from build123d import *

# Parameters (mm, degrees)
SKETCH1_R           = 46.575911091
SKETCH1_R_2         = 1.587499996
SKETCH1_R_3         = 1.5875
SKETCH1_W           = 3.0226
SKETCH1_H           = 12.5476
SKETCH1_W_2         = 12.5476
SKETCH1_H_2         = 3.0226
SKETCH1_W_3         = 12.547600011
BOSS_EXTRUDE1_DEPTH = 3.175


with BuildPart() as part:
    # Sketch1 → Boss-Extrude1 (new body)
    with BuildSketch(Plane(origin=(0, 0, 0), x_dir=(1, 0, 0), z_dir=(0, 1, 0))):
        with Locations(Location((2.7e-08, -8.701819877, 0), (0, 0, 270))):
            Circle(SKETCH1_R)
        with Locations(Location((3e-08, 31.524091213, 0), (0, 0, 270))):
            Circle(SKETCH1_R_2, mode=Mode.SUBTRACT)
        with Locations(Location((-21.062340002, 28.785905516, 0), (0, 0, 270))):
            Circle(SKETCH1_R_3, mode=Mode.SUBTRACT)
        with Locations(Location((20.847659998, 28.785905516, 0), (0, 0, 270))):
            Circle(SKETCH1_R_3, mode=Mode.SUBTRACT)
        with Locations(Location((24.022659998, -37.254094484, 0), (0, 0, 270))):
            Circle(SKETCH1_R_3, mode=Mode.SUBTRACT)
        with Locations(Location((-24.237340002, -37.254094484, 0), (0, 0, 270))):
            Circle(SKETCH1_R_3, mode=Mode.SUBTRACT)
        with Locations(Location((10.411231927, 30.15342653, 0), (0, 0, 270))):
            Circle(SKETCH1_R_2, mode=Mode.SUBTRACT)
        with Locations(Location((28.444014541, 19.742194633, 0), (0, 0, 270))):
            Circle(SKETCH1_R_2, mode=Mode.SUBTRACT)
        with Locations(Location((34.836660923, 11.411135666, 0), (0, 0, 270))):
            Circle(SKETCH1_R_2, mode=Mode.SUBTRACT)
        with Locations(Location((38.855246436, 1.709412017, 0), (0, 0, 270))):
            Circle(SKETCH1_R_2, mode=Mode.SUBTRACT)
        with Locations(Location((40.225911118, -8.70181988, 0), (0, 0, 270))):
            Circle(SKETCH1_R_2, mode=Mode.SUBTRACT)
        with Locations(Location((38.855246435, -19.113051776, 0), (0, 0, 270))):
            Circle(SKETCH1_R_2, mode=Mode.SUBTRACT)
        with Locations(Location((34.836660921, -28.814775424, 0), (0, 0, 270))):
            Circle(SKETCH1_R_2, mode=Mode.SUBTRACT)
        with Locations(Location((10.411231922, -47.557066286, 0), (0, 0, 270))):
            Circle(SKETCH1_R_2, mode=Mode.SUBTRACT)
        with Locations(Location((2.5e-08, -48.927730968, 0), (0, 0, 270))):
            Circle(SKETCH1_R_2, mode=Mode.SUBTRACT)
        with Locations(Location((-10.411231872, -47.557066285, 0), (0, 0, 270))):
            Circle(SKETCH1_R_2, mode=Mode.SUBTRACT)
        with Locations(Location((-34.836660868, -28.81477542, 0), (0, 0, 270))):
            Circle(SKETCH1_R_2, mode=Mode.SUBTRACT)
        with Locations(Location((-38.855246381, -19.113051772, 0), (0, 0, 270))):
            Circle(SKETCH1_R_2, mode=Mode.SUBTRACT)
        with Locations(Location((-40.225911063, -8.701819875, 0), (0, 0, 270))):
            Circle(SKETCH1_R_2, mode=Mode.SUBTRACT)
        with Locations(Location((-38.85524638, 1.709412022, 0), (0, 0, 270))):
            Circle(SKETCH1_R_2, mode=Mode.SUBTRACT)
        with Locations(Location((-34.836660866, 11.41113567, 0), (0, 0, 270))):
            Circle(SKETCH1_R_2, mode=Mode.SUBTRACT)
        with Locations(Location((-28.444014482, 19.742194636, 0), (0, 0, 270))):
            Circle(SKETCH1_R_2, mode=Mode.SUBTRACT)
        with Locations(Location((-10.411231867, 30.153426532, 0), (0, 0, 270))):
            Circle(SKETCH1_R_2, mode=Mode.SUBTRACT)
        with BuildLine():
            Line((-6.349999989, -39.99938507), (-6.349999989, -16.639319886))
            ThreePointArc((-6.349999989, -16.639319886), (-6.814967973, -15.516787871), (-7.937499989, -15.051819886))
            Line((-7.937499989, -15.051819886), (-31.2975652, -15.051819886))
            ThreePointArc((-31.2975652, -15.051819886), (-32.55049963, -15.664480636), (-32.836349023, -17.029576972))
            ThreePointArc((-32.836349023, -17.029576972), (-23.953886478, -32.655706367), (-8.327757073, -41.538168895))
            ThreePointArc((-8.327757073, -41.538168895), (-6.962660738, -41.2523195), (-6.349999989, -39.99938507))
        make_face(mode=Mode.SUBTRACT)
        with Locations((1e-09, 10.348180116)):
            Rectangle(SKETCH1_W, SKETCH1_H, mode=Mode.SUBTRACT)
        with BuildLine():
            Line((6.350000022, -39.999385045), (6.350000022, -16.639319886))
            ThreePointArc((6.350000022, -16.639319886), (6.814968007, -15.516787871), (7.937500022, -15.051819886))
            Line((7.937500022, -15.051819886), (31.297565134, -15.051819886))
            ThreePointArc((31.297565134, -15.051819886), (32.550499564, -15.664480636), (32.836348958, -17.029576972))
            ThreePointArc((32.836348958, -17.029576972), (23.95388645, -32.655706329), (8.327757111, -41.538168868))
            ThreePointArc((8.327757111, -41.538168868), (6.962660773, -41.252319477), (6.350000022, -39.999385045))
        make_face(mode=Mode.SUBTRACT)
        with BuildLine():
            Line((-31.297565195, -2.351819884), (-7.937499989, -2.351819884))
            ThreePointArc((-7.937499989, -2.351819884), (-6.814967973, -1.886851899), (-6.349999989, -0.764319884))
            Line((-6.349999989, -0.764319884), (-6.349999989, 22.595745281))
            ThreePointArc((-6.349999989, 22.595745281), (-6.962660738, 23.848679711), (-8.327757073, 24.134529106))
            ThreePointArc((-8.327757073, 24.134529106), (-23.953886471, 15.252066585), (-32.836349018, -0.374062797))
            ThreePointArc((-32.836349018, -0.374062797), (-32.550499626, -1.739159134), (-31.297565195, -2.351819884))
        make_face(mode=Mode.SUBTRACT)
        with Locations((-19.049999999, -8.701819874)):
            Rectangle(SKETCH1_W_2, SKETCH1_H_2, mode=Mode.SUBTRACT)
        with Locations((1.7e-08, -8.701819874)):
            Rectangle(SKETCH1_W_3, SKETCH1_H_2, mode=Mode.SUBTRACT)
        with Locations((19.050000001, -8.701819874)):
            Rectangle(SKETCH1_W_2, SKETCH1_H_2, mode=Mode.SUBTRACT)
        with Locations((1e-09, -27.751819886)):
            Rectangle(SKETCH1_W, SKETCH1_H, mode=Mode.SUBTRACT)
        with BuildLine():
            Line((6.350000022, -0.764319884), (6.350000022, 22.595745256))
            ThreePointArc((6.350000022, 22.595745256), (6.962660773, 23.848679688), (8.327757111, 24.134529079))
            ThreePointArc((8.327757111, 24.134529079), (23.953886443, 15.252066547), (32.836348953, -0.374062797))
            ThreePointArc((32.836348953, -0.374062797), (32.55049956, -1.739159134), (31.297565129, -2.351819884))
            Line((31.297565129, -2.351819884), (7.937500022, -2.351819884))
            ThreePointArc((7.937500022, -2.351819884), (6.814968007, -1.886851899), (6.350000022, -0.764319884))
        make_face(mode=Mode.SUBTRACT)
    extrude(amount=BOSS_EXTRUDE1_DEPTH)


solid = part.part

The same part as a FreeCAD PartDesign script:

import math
import FreeCAD as App
import Part
import Sketcher

V = App.Vector
Q = App.Units.Quantity

doc = App.newDocument("Part")
body = doc.addObject("PartDesign::Body", "Body")

# Sketch on XZ plane
sketch1 = body.newObject("Sketcher::SketchObject", "Sketch")
sketch1.AttachmentSupport = (doc.getObject("XZ_Plane"), [""])
sketch1.MapMode = "FlatFace"
sketch1.addGeometry([
    Part.Circle(V(0, 8.7, 0), V(0, 0, 1), 46.6),  # 0
    Part.Circle(V(-21.1, -28.8, 0), V(0, 0, 1), 1.6),  # 1
    Part.Circle(V(-28.4, -19.7, 0), V(0, 0, 1), 1.6),  # 2
    Part.Circle(V(-34.8, -11.4, 0), V(0, 0, 1), 1.6),  # 3
    Part.Circle(V(-38.9, -1.7, 0), V(0, 0, 1), 1.6),  # 4
    Part.Circle(V(-40.2, 8.7, 0), V(0, 0, 1), 1.6),  # 5
    Part.Circle(V(-10.4, -30.2, 0), V(0, 0, 1), 1.6),  # 6
    Part.LineSegment(V(-7.9, 2.4, 0), V(-31.3, 2.4, 0)),  # 7
    Part.ArcOfCircle(Part.Circle(V(-31.3, 0.8, 0), V(0, 0, 1), 1.6), math.radians(90), math.radians(194)),  # 8
    Part.ArcOfCircle(Part.Circle(V(0, 8.7, 0), V(0, 0, 1), 33.9), math.radians(-166), math.radians(-104)),  # 9
    Part.ArcOfCircle(Part.Circle(V(-7.9, -22.6, 0), V(0, 0, 1), 1.6), math.radians(-104), math.radians(0)),  # 10
    Part.LineSegment(V(-6.3, -22.6, 0), V(-6.3, 0.8, 0)),  # 11
    Part.ArcOfCircle(Part.Circle(V(-7.9, 0.8, 0), V(0, 0, 1), 1.6), math.radians(0), math.radians(90)),  # 12
    Part.LineSegment(V(-12.8, 10.2, 0), V(-25.3, 10.2, 0)),  # 13
    Part.LineSegment(V(-25.3, 10.2, 0), V(-25.3, 7.2, 0)),  # 14
    Part.LineSegment(V(-25.3, 7.2, 0), V(-12.8, 7.2, 0)),  # 15
    Part.LineSegment(V(-12.8, 7.2, 0), V(-12.8, 10.2, 0)),  # 16
    Part.LineSegment(V(1.5, -4.1, 0), V(-1.5, -4.1, 0)),  # 17
    Part.LineSegment(V(-1.5, -4.1, 0), V(-1.5, -16.6, 0)),  # 18
    Part.LineSegment(V(-1.5, -16.6, 0), V(1.5, -16.6, 0)),  # 19
    Part.LineSegment(V(1.5, -16.6, 0), V(1.5, -4.1, 0)),  # 20
    Part.LineSegment(V(6.3, 10.2, 0), V(-6.3, 10.2, 0)),  # 21
    Part.LineSegment(V(-6.3, 10.2, 0), V(-6.3, 7.2, 0)),  # 22
    Part.LineSegment(V(-6.3, 7.2, 0), V(6.3, 7.2, 0)),  # 23
    Part.LineSegment(V(6.3, 7.2, 0), V(6.3, 10.2, 0)),  # 24
    Part.Circle(V(-38.9, 19.1, 0), V(0, 0, 1), 1.6),  # 25
    Part.Circle(V(-34.8, 28.8, 0), V(0, 0, 1), 1.6),  # 26
    Part.Circle(V(-24.2, 37.3, 0), V(0, 0, 1), 1.6),  # 27
    Part.LineSegment(V(-6.3, 16.6, 0), V(-6.3, 40, 0)),  # 28
    Part.ArcOfCircle(Part.Circle(V(-7.9, 40, 0), V(0, 0, 1), 1.6), math.radians(0), math.radians(104)),  # 29
    Part.ArcOfCircle(Part.Circle(V(0, 8.7, 0), V(0, 0, 1), 33.9), math.radians(104), math.radians(166)),  # 30
    Part.ArcOfCircle(Part.Circle(V(-31.3, 16.6, 0), V(0, 0, 1), 1.6), math.radians(166), math.radians(270)),  # 31
    Part.LineSegment(V(-31.3, 15.1, 0), V(-7.9, 15.1, 0)),  # 32
    Part.ArcOfCircle(Part.Circle(V(-7.9, 16.6, 0), V(0, 0, 1), 1.6), math.radians(-90), math.radians(0)),  # 33
    Part.LineSegment(V(1.5, 34, 0), V(-1.5, 34, 0)),  # 34
    Part.LineSegment(V(-1.5, 34, 0), V(-1.5, 21.5, 0)),  # 35
    Part.LineSegment(V(-1.5, 21.5, 0), V(1.5, 21.5, 0)),  # 36
    Part.LineSegment(V(1.5, 21.5, 0), V(1.5, 34, 0)),  # 37
    Part.Circle(V(-10.4, 47.6, 0), V(0, 0, 1), 1.6),  # 38
    Part.Circle(V(0, 48.9, 0), V(0, 0, 1), 1.6),  # 39
    Part.Circle(V(0, -31.5, 0), V(0, 0, 1), 1.6),  # 40
    Part.Circle(V(10.4, -30.2, 0), V(0, 0, 1), 1.6),  # 41
    Part.Circle(V(20.8, -28.8, 0), V(0, 0, 1), 1.6),  # 42
    Part.ArcOfCircle(Part.Circle(V(7.9, 0.8, 0), V(0, 0, 1), 1.6), math.radians(90), math.radians(180)),  # 43
    Part.LineSegment(V(6.4, 0.8, 0), V(6.4, -22.6, 0)),  # 44
    Part.ArcOfCircle(Part.Circle(V(7.9, -22.6, 0), V(0, 0, 1), 1.6), math.radians(180), math.radians(284)),  # 45
    Part.ArcOfCircle(Part.Circle(V(0, 8.7, 0), V(0, 0, 1), 33.9), math.radians(-76), math.radians(-14)),  # 46
    Part.ArcOfCircle(Part.Circle(V(31.3, 0.8, 0), V(0, 0, 1), 1.6), math.radians(-14), math.radians(90)),  # 47
    Part.LineSegment(V(31.3, 2.4, 0), V(7.9, 2.4, 0)),  # 48
    Part.LineSegment(V(25.3, 10.2, 0), V(12.8, 10.2, 0)),  # 49
    Part.LineSegment(V(12.8, 10.2, 0), V(12.8, 7.2, 0)),  # 50
    Part.LineSegment(V(12.8, 7.2, 0), V(25.3, 7.2, 0)),  # 51
    Part.LineSegment(V(25.3, 7.2, 0), V(25.3, 10.2, 0)),  # 52
    Part.Circle(V(28.4, -19.7, 0), V(0, 0, 1), 1.6),  # 53
    Part.Circle(V(34.8, -11.4, 0), V(0, 0, 1), 1.6),  # 54
    Part.Circle(V(38.9, -1.7, 0), V(0, 0, 1), 1.6),  # 55
    Part.ArcOfCircle(Part.Circle(V(7.9, 40, 0), V(0, 0, 1), 1.6), math.radians(76), math.radians(180)),  # 56
    Part.LineSegment(V(6.4, 40, 0), V(6.4, 16.6, 0)),  # 57
    Part.ArcOfCircle(Part.Circle(V(7.9, 16.6, 0), V(0, 0, 1), 1.6), math.radians(180), math.radians(270)),  # 58
    Part.LineSegment(V(7.9, 15.1, 0), V(31.3, 15.1, 0)),  # 59
    Part.ArcOfCircle(Part.Circle(V(31.3, 16.6, 0), V(0, 0, 1), 1.6), math.radians(-90), math.radians(14)),  # 60
    Part.ArcOfCircle(Part.Circle(V(0, 8.7, 0), V(0, 0, 1), 33.9), math.radians(14), math.radians(76)),  # 61
    Part.Circle(V(10.4, 47.6, 0), V(0, 0, 1), 1.6),  # 62
    Part.Circle(V(40.2, 8.7, 0), V(0, 0, 1), 1.6),  # 63
    Part.Circle(V(38.9, 19.1, 0), V(0, 0, 1), 1.6),  # 64
    Part.Circle(V(34.8, 28.8, 0), V(0, 0, 1), 1.6),  # 65
    Part.Circle(V(24, 37.3, 0), V(0, 0, 1), 1.6),  # 66
], False)
sketch1.addConstraint([
    Sketcher.Constraint("Tangent", 7, 2, 8, 1),
    Sketcher.Constraint("Tangent", 8, 2, 9, 1),
    Sketcher.Constraint("Tangent", 9, 2, 10, 1),
    Sketcher.Constraint("Tangent", 10, 2, 11, 1),
    Sketcher.Constraint("Tangent", 11, 2, 12, 1),
    Sketcher.Constraint("Tangent", 12, 2, 7, 1),
    Sketcher.Constraint("Coincident", 13, 2, 14, 1),
    Sketcher.Constraint("Coincident", 14, 2, 15, 1),
    Sketcher.Constraint("Coincident", 15, 2, 16, 1),
    Sketcher.Constraint("Coincident", 16, 2, 13, 1),
    Sketcher.Constraint("Coincident", 17, 2, 18, 1),
    Sketcher.Constraint("Coincident", 18, 2, 19, 1),
    Sketcher.Constraint("Coincident", 19, 2, 20, 1),
    Sketcher.Constraint("Coincident", 20, 2, 17, 1),
    Sketcher.Constraint("Coincident", 21, 2, 22, 1),
    Sketcher.Constraint("Coincident", 22, 2, 23, 1),
    Sketcher.Constraint("Coincident", 23, 2, 24, 1),
    Sketcher.Constraint("Coincident", 24, 2, 21, 1),
    Sketcher.Constraint("Tangent", 28, 2, 29, 1),
    Sketcher.Constraint("Tangent", 29, 2, 30, 1),
    Sketcher.Constraint("Tangent", 30, 2, 31, 1),
    Sketcher.Constraint("Tangent", 31, 2, 32, 1),
    Sketcher.Constraint("Tangent", 32, 2, 33, 1),
    Sketcher.Constraint("Tangent", 33, 2, 28, 1),
    Sketcher.Constraint("Coincident", 34, 2, 35, 1),
    Sketcher.Constraint("Coincident", 35, 2, 36, 1),
    Sketcher.Constraint("Coincident", 36, 2, 37, 1),
    Sketcher.Constraint("Coincident", 37, 2, 34, 1),
    Sketcher.Constraint("Tangent", 43, 2, 44, 1),
    Sketcher.Constraint("Tangent", 44, 2, 45, 1),
    Sketcher.Constraint("Tangent", 45, 2, 46, 1),
    Sketcher.Constraint("Tangent", 46, 2, 47, 1),
    Sketcher.Constraint("Tangent", 47, 2, 48, 1),
    Sketcher.Constraint("Tangent", 48, 2, 43, 1),
    Sketcher.Constraint("Coincident", 49, 2, 50, 1),
    Sketcher.Constraint("Coincident", 50, 2, 51, 1),
    Sketcher.Constraint("Coincident", 51, 2, 52, 1),
    Sketcher.Constraint("Coincident", 52, 2, 49, 1),
    Sketcher.Constraint("Tangent", 56, 2, 57, 1),
    Sketcher.Constraint("Tangent", 57, 2, 58, 1),
    Sketcher.Constraint("Tangent", 58, 2, 59, 1),
    Sketcher.Constraint("Tangent", 59, 2, 60, 1),
    Sketcher.Constraint("Tangent", 60, 2, 61, 1),
    Sketcher.Constraint("Tangent", 61, 2, 56, 1),
    Sketcher.Constraint("Horizontal", 7),
    Sketcher.Constraint("Vertical", 11),
    Sketcher.Constraint("Horizontal", 13),
    Sketcher.Constraint("Vertical", 14),
    Sketcher.Constraint("Horizontal", 15),
    Sketcher.Constraint("Vertical", 16),
    Sketcher.Constraint("Horizontal", 17),
    Sketcher.Constraint("Vertical", 18),
    Sketcher.Constraint("Horizontal", 19),
    Sketcher.Constraint("Vertical", 20),
    Sketcher.Constraint("Horizontal", 21),
    Sketcher.Constraint("Vertical", 22),
    Sketcher.Constraint("Horizontal", 23),
    Sketcher.Constraint("Vertical", 24),
    Sketcher.Constraint("Vertical", 28),
    Sketcher.Constraint("Horizontal", 32),
    Sketcher.Constraint("Horizontal", 34),
    Sketcher.Constraint("Vertical", 35),
    Sketcher.Constraint("Horizontal", 36),
    Sketcher.Constraint("Vertical", 37),
    Sketcher.Constraint("Vertical", 44),
    Sketcher.Constraint("Horizontal", 48),
    Sketcher.Constraint("Horizontal", 49),
    Sketcher.Constraint("Vertical", 50),
    Sketcher.Constraint("Horizontal", 51),
    Sketcher.Constraint("Vertical", 52),
    Sketcher.Constraint("Vertical", 57),
    Sketcher.Constraint("Horizontal", 59),
    Sketcher.Constraint("Coincident", 9, 3, 0, 3),
    Sketcher.Constraint("Coincident", 30, 3, 0, 3),
    Sketcher.Constraint("Coincident", 46, 3, 0, 3),
    Sketcher.Constraint("Coincident", 61, 3, 0, 3),
    Sketcher.Constraint("Equal", 1, 2),
    Sketcher.Constraint("Equal", 2, 3),
    Sketcher.Constraint("Equal", 3, 4),
    Sketcher.Constraint("Equal", 4, 5),
    Sketcher.Constraint("Equal", 5, 6),
    Sketcher.Constraint("Equal", 6, 8),
    Sketcher.Constraint("Equal", 8, 10),
    Sketcher.Constraint("Equal", 10, 12),
    Sketcher.Constraint("Equal", 12, 25),
    Sketcher.Constraint("Equal", 25, 26),
    Sketcher.Constraint("Equal", 26, 27),
    Sketcher.Constraint("Equal", 27, 29),
    Sketcher.Constraint("Equal", 9, 30),
    Sketcher.Constraint("Equal", 29, 31),
    Sketcher.Constraint("Equal", 31, 33),
    Sketcher.Constraint("Equal", 33, 38),
    Sketcher.Constraint("Equal", 38, 39),
    Sketcher.Constraint("Equal", 39, 40),
    Sketcher.Constraint("Equal", 40, 41),
    Sketcher.Constraint("Equal", 41, 42),
    Sketcher.Constraint("Equal", 42, 43),
    Sketcher.Constraint("Equal", 43, 45),
    Sketcher.Constraint("Equal", 30, 46),
    Sketcher.Constraint("Equal", 45, 47),
    Sketcher.Constraint("Equal", 47, 53),
    Sketcher.Constraint("Equal", 53, 54),
    Sketcher.Constraint("Equal", 54, 55),
    Sketcher.Constraint("Equal", 55, 56),
    Sketcher.Constraint("Equal", 56, 58),
    Sketcher.Constraint("Equal", 58, 60),
    Sketcher.Constraint("Equal", 46, 61),
    Sketcher.Constraint("Equal", 60, 62),
    Sketcher.Constraint("Equal", 62, 63),
    Sketcher.Constraint("Equal", 63, 64),
    Sketcher.Constraint("Equal", 64, 65),
    Sketcher.Constraint("Equal", 65, 66),
    Sketcher.Constraint("Symmetric", 6, 3, 41, 3, -2),
    Sketcher.Constraint("Symmetric", 12, 3, 43, 3, -2),
    Sketcher.Constraint("Symmetric", 2, 3, 53, 3, -2),
    Sketcher.Constraint("Symmetric", 3, 3, 54, 3, -2),
    Sketcher.Constraint("Symmetric", 4, 3, 55, 3, -2),
    Sketcher.Constraint("Symmetric", 29, 3, 56, 3, -2),
    Sketcher.Constraint("Symmetric", 38, 3, 62, 3, -2),
    Sketcher.Constraint("Symmetric", 5, 3, 63, 3, -2),
    Sketcher.Constraint("Symmetric", 25, 3, 64, 3, -2),
    Sketcher.Constraint("Symmetric", 26, 3, 65, 3, -2),
    Sketcher.Constraint("Symmetric", 16, 2, 49, 2, -2),
    Sketcher.Constraint("Symmetric", 14, 2, 51, 2, -2),
    Sketcher.Constraint("PointOnObject", 39, 3, -2),
    Sketcher.Constraint("PointOnObject", 40, 3, -2),
    Sketcher.Constraint("Horizontal", 0, 3, 5, 3),
    Sketcher.Constraint("Horizontal", 1, 3, 42, 3),
    Sketcher.Constraint("Horizontal", 33, 3, 58, 3),
    Sketcher.Constraint("Horizontal", 27, 3, 66, 3),
    Sketcher.Constraint("Horizontal", 16, 2, 21, 2),
    Sketcher.Constraint("Horizontal", 15, 2, 22, 2),
    Sketcher.Constraint("Vertical", 4, 3, 25, 3),
    Sketcher.Constraint("Vertical", 3, 3, 26, 3),
    Sketcher.Constraint("Vertical", 12, 3, 29, 3),
    Sketcher.Constraint("Vertical", 8, 3, 31, 3),
    Sketcher.Constraint("Vertical", 6, 3, 38, 3),
    Sketcher.Constraint("Vertical", 18, 2, 34, 2),
    Sketcher.Constraint("Vertical", 20, 2, 36, 2),
    Sketcher.Constraint("Equal", 15, 21),
    Sketcher.Constraint("Equal", 59, 11),
    Sketcher.Constraint("Equal", 36, 14),
    Sketcher.Constraint("Equal", 51, 18),
    Sketcher.Constraint("Equal", 20, 35),
    Sketcher.Constraint("Diameter", 1, Q("0.125 in")),
    Sketcher.Constraint("DistanceX", 13, 2, 13, 1, Q("0.494 in")),
    Sketcher.Constraint("DistanceX", 17, 2, 17, 1, Q("0.119 in")),
    Sketcher.Constraint("DistanceX", 10, 2, -1, 1, Q("0.25 in")),
    Sketcher.Constraint("DistanceX", 13, 2, -1, 1, Q("0.997 in")),
    Sketcher.Constraint("DistanceX", 21, 2, -1, 1, Q("0.247 in")),
    Sketcher.Constraint("Radius", 9, 33.875911),
    Sketcher.Constraint("Diameter", 0, 93.151822),
    Sketcher.Constraint("DistanceX", 17, 2, -1, 1, Q("0.0595 in")),
    Sketcher.Constraint("DistanceY", -1, 1, 0, 3, 8.70182),
    Sketcher.Constraint("DistanceX", 1, 3, -1, 1, 21.06234),
    Sketcher.Constraint("DistanceX", 3, 3, -1, 1, 34.836661),
    Sketcher.Constraint("DistanceX", 5, 3, -1, 1, 40.225911),
    Sketcher.Constraint("DistanceX", 6, 3, -1, 1, 10.411232),
    Sketcher.Constraint("DistanceY", -1, 1, 25, 3, 19.113052),
    Sketcher.Constraint("DistanceX", 27, 3, -1, 1, 24.23734),
    Sketcher.Constraint("DistanceY", -1, 1, 39, 3, 48.927731),
    Sketcher.Constraint("DistanceY", 40, 3, -1, 1, 31.524091),
    Sketcher.Constraint("DistanceX", -1, 1, 42, 3, 20.84766),
    Sketcher.Constraint("DistanceX", -1, 1, 66, 3, 24.02266),
    Sketcher.Constraint("DistanceY", -1, 1, 13, 2, 10.21312),
    Sketcher.Constraint("DistanceY", 17, 2, -1, 1, 4.07438),
    Sketcher.Constraint("DistanceY", -1, 1, 34, 2, 34.02562),
    Sketcher.Constraint("DistanceY", 1, 3, -1, 1, 28.785906),
    Sketcher.Constraint("DistanceX", 2, 3, -1, 1, 28.444014),
    Sketcher.Constraint("DistanceY", 2, 3, -1, 1, 19.742195),
    Sketcher.Constraint("DistanceY", 3, 3, -1, 1, 11.411136),
    Sketcher.Constraint("DistanceX", 4, 3, -1, 1, 38.855246),
    Sketcher.Constraint("DistanceY", 4, 3, -1, 1, 1.709412),
    Sketcher.Constraint("DistanceY", 6, 3, -1, 1, 30.153427),
    Sketcher.Constraint("DistanceY", -1, 1, 26, 3, 28.814775),
    Sketcher.Constraint("DistanceY", -1, 1, 27, 3, 37.254094),
    Sketcher.Constraint("DistanceY", -1, 1, 38, 3, 47.557066),
])
pad1 = body.newObject("PartDesign::Pad", "Pad")
pad1.Profile = sketch1
pad1.Length = Q("0.125 in")
pad1.Reversed = True

doc.recompute()
